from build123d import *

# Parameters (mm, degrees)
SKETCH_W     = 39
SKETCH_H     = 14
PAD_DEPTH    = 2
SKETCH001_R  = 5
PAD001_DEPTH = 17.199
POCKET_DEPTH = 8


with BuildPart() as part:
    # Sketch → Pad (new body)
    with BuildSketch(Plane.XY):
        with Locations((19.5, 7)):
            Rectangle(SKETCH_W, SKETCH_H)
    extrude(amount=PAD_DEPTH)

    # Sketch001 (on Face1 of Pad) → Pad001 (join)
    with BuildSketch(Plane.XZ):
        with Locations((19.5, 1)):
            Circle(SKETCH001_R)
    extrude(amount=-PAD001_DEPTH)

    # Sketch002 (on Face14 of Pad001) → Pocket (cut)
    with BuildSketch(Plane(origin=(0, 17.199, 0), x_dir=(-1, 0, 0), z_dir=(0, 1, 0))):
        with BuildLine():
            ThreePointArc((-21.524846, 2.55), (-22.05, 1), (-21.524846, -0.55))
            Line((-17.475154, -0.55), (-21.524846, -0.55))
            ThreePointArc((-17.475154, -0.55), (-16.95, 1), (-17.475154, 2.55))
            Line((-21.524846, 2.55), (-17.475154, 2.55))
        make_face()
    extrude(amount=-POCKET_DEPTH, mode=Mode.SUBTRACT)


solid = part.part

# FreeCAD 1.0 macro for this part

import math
import FreeCAD as App
import Part
import Sketcher


def add_polygon(sketch, points):
    """Adds a closed chain of lines whose ends are joined by coincident constraints."""
    first, n = sketch.GeometryCount, len(points)
    for a, b in zip(points, points[1:] + points[:1]):
        sketch.addGeometry(Part.LineSegment(App.Vector(*a, 0), App.Vector(*b, 0)), False)
    for i in range(n):
        sketch.addConstraint(Sketcher.Constraint("Coincident", first + i, 2, first + (i + 1) % n, 1))

doc = App.newDocument("Part")
params = doc.addObject("Spreadsheet::Sheet", "Params")
for row, (alias, value) in enumerate([
    ("sketch1_width", "39 mm"),
    ("sketch1_height", "14 mm"),
    ("pad1_length", "2 mm"),
    ("sketch2_diameter", "10 mm"),
    ("pad2_length", "17.199 mm"),
    ("sketch3_radius", "2.550001 mm"),
    ("pocket1_length", "8 mm"),
], start=1):
    params.set(f"A{row}", alias)
    params.set(f"B{row}", "=" + value)
    params.setAlias(f"B{row}", alias)

body = doc.addObject("PartDesign::Body", "Body")

# Sketch on XY plane
sketch1 = doc.addObject("Sketcher::SketchObject", "Sketch")
body.addObject(sketch1)
sketch1.AttachmentSupport = (doc.XY_Plane, [""])
sketch1.MapMode = "FlatFace"
add_polygon(sketch1, [(0, 14), (0, 0), (39, 0), (39, 14)])  # lines 0-3
sketch1.addConstraint([
    Sketcher.Constraint("Vertical", 0),
    Sketcher.Constraint("Horizontal", 1),
    Sketcher.Constraint("Vertical", 2),
    Sketcher.Constraint("Horizontal", 3),
    Sketcher.Constraint("Coincident", 0, 2, -1, 1),
    Sketcher.Constraint("DistanceX", 1, 1, 1, 2, 39.0),
    Sketcher.Constraint("DistanceY", 0, 2, 0, 1, 14.0),
])
sketch1.setExpression("Constraints[9]", "Params.sketch1_width")
sketch1.setExpression("Constraints[10]", "Params.sketch1_height")
pad1 = doc.addObject("PartDesign::Pad", "Pad")
body.addObject(pad1)
pad1.Profile = sketch1
pad1.setExpression("Length", "Params.pad1_length")

# Sketch on XZ plane
sketch2 = doc.addObject("Sketcher::SketchObject", "Sketch001")
body.addObject(sketch2)
sketch2.AttachmentSupport = (doc.XZ_Plane, [""])
sketch2.MapMode = "FlatFace"
sketch2.addGeometry(Part.Circle(App.Vector(19.5, 1, 0), App.Vector(0, 0, 1), 5), False)
sketch2.addConstraint([
    Sketcher.Constraint("Diameter", 0, 10.0),
    Sketcher.Constraint("DistanceY", -1, 1, 0, 3, 1.0),
    Sketcher.Constraint("DistanceX", -1, 1, 0, 3, 19.5),
])
sketch2.setExpression("Constraints[0]", "Params.sketch2_diameter")
pad2 = doc.addObject("PartDesign::Pad", "Pad001")
body.addObject(pad2)
pad2.Profile = sketch2
pad2.setExpression("Length", "Params.pad2_length")
pad2.Reversed = True

# Sketch on XZ plane
sketch3 = doc.addObject("Sketcher::SketchObject", "Sketch002")
body.addObject(sketch3)
sketch3.AttachmentSupport = (doc.XZ_Plane, [""])
sketch3.MapMode = "FlatFace"
sketch3.AttachmentOffset = App.Placement(App.Vector(0, 0, -17.199), App.Rotation())
sketch3.addGeometry([
    Part.ArcOfCircle(Part.Circle(App.Vector(19.499999, 1, 0), App.Vector(0, 0, 1), 2.550001), math.radians(-37.433689), math.radians(37.433689)),
    Part.LineSegment(App.Vector(21.524846, -0.55, 0), App.Vector(17.475154, -0.55, 0)),
    Part.ArcOfCircle(Part.Circle(App.Vector(19.500001, 1, 0), App.Vector(0, 0, 1), 2.550001), math.radians(142.566311), math.radians(217.433689)),
    Part.LineSegment(App.Vector(17.475154, 2.55, 0), App.Vector(21.524846, 2.55, 0)),
], False)
sketch3.addConstraint([
    Sketcher.Constraint("Coincident", 0, 1, 1, 1),
    Sketcher.Constraint("Coincident", 1, 2, 2, 2),
    Sketcher.Constraint("Coincident", 2, 1, 3, 1),
    Sketcher.Constraint("Coincident", 3, 2, 0, 2),
    Sketcher.Constraint("Horizontal", 1),
    Sketcher.Constraint("Horizontal", 3),
    Sketcher.Constraint("Coincident", 2, 3, 0, 3),
    Sketcher.Constraint("Equal", 0, 2),
    Sketcher.Constraint("Vertical", 1, 2, 2, 1),
    Sketcher.Constraint("Radius", 0, 2.550001),
    Sketcher.Constraint("DistanceY", -1, 1, 0, 3, 1.0),
    Sketcher.Constraint("DistanceX", -1, 1, 0, 3, 19.499999),
    Sketcher.Constraint("DistanceY", 1, 2, 2, 1, 3.1),
])
sketch3.setExpression("Constraints[9]", "Params.sketch3_radius")
pocket1 = doc.addObject("PartDesign::Pocket", "Pocket")
body.addObject(pocket1)
pocket1.Profile = sketch3
pocket1.setExpression("Length", "Params.pocket1_length")
pocket1.Reversed = True

doc.recompute()
